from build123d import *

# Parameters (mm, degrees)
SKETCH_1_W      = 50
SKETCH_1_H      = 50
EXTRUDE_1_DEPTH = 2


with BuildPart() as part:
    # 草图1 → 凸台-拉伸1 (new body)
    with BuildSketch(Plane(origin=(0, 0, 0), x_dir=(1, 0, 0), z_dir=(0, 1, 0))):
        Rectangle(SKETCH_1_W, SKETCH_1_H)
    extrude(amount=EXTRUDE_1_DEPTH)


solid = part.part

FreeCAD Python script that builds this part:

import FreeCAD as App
import Part
import Sketcher
Q = App.Units.Quantity


def add_polygon(sketch, points):
    """Adds a closed chain of lines whose ends are joined by coincident constraints."""
    first, n = sketch.GeometryCount, len(points)
    for a, b in zip(points, points[1:] + points[:1]):
        sketch.addGeometry(Part.LineSegment(App.Vector(*a, 0), App.Vector(*b, 0)), False)
    for i in range(n):
        sketch.addConstraint(Sketcher.Constraint("Coincident", first + i, 2, first + (i + 1) % n, 1))

doc = App.newDocument("Part")
body = doc.addObject("PartDesign::Body", "Body")

# Sketch on XZ plane
sketch1 = doc.addObject("Sketcher::SketchObject", "Sketch")
body.addObject(sketch1)
sketch1.AttachmentSupport = (doc.XZ_Plane, [""])
sketch1.MapMode = "FlatFace"
add_polygon(sketch1, [(-25, -25), (-25, 25), (25, 25), (25, -25)])  # lines 0-3
sketch1.addConstraint(Sketcher.Constraint("Vertical", 0))
sketch1.addConstraint(Sketcher.Constraint("Horizontal", 1))
sketch1.addConstraint(Sketcher.Constraint("Vertical", 2))
sketch1.addConstraint(Sketcher.Constraint("Horizontal", 3))
sketch1.addConstraint(Sketcher.Constraint("Symmetric", 0, 2, 2, 2, -1, 1))
sketch1.addConstraint(Sketcher.Constraint("Equal", 3, 0))
sketch1.addConstraint(Sketcher.Constraint("DistanceX", 1, 1, 1, 2, Q("50 mm")))
pad1 = doc.addObject("PartDesign::Pad", "Pad")
body.addObject(pad1)
pad1.Profile = sketch1
pad1.Length = 2
pad1.Reversed = True

doc.recompute()
